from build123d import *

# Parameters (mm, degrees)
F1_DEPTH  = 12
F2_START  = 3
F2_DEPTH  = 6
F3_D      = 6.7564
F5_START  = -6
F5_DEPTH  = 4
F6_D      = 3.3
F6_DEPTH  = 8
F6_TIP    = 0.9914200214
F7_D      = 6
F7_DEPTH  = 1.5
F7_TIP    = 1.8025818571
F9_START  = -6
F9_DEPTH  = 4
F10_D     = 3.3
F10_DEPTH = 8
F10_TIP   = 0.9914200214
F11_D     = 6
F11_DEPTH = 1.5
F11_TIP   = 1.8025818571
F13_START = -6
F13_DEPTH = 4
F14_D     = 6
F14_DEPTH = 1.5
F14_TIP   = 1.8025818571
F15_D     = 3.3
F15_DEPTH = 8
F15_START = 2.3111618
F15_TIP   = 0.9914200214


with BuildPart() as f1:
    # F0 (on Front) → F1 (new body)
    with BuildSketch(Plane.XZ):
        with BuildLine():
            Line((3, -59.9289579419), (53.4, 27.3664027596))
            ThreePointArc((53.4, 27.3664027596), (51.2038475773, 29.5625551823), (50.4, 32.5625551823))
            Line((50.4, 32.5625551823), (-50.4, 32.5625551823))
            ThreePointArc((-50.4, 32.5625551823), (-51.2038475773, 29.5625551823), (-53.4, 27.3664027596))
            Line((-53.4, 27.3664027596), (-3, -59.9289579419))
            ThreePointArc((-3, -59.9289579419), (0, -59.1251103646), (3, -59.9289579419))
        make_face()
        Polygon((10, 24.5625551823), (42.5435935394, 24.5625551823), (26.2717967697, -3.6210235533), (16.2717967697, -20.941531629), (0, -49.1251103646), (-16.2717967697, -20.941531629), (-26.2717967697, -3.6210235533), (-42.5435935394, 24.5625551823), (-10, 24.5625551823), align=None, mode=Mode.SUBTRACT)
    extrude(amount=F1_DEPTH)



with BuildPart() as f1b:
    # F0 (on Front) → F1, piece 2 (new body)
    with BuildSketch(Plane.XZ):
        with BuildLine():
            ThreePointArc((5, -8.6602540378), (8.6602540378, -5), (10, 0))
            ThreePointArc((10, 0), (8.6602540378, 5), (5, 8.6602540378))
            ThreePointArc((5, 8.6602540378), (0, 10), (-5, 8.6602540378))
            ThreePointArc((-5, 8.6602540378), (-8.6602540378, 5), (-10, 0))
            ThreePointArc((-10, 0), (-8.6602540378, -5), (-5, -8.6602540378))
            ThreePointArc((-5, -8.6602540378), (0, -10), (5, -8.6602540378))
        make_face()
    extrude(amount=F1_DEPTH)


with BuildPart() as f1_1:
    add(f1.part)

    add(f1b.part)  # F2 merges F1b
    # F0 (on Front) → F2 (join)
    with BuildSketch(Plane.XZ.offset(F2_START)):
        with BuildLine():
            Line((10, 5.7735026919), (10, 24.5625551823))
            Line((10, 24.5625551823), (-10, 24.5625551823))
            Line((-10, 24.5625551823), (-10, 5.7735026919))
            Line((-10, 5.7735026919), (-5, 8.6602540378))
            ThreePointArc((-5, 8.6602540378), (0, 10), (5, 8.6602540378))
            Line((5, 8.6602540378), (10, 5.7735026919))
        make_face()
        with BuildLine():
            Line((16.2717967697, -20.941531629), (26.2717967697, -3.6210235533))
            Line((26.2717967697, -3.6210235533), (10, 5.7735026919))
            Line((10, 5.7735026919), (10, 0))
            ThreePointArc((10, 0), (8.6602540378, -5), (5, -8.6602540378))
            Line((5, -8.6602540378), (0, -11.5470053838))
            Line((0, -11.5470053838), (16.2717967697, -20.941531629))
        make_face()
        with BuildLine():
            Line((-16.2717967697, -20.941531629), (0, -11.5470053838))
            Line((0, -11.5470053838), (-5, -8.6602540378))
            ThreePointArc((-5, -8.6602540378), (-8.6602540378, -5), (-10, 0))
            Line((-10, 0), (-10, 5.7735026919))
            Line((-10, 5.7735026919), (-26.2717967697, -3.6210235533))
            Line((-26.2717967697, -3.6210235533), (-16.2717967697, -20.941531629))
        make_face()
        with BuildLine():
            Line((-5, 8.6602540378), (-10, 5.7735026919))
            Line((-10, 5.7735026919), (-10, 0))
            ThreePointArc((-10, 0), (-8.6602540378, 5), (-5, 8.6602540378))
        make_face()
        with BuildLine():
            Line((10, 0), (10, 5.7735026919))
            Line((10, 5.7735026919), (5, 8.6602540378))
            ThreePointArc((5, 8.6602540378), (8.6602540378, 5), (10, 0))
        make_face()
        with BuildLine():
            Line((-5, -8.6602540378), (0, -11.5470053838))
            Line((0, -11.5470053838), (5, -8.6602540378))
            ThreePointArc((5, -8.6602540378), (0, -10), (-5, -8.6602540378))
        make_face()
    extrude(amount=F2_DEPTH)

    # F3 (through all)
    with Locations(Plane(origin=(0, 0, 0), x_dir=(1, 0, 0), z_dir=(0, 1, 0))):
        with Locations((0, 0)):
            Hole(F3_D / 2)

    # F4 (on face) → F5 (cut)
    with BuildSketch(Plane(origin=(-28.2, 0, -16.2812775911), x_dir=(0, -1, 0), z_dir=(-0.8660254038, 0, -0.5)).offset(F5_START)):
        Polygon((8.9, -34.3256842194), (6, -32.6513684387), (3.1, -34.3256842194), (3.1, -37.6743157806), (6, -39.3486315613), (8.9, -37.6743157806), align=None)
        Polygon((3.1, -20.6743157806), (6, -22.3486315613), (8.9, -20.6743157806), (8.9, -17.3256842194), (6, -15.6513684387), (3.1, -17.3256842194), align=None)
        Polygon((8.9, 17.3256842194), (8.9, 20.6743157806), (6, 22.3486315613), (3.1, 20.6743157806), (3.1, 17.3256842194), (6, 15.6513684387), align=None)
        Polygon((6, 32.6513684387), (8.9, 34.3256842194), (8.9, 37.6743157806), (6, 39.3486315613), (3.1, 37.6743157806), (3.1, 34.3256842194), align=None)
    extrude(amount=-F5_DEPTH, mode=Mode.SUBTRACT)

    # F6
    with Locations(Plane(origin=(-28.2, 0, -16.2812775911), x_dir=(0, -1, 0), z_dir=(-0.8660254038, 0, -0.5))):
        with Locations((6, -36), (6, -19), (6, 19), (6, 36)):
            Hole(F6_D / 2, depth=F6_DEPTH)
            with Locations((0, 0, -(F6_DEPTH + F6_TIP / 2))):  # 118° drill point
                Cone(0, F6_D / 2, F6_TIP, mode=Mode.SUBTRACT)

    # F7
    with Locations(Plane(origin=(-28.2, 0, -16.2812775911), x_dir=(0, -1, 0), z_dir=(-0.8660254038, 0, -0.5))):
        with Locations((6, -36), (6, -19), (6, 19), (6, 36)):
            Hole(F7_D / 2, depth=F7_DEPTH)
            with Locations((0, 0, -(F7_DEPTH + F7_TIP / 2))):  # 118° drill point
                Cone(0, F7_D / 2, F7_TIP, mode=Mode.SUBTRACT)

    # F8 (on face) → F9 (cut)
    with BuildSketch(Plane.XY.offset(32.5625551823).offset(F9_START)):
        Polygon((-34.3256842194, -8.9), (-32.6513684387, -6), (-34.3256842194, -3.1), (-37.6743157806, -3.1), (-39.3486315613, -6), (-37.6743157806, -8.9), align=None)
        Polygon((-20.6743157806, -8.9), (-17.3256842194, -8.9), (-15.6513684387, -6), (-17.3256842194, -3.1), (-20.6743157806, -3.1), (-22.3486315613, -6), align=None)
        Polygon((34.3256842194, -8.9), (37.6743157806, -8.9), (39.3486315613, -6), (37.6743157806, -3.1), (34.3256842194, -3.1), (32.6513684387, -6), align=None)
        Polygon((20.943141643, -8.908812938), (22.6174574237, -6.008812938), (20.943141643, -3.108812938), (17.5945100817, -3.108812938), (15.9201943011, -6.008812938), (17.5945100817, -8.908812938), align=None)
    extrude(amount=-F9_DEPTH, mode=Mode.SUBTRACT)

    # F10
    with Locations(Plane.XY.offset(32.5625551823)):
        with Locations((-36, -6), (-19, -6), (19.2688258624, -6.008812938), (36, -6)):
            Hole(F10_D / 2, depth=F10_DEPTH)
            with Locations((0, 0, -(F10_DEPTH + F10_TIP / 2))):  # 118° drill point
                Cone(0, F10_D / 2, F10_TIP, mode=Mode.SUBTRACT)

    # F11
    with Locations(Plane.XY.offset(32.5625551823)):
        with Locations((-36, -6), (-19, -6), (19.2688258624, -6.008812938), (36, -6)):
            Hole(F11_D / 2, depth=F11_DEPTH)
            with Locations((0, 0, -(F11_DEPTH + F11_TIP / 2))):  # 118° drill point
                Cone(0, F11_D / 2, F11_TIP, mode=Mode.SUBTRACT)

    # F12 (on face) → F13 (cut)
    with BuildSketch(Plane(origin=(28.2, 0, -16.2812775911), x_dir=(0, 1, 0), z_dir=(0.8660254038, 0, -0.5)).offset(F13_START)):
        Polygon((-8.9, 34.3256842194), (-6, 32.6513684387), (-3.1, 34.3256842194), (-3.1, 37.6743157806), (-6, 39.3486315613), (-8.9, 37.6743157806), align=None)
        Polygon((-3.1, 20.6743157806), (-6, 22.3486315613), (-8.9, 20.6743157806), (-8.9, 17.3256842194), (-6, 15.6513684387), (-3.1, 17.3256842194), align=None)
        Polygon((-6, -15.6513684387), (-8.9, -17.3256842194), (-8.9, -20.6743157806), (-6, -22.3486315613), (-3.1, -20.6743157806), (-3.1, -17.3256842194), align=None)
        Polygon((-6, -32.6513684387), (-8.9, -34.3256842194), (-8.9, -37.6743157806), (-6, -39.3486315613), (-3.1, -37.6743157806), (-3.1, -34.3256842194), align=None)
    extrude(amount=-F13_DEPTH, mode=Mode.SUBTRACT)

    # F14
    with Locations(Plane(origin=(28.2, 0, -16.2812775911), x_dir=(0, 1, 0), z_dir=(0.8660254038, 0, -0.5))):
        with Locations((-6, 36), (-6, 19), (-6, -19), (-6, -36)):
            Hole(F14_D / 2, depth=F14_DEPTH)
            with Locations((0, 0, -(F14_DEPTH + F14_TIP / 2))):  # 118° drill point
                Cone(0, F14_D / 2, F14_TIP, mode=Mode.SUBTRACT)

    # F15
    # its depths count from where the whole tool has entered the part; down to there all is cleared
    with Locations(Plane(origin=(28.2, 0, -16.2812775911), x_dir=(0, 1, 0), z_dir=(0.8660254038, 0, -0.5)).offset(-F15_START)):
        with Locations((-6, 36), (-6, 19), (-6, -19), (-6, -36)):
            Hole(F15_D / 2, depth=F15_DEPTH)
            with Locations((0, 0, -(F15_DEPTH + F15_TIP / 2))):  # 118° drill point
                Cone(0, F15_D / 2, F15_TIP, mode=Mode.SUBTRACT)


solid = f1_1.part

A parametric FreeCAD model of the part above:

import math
import FreeCAD as App
import Part
import Sketcher
Q = App.Units.Quantity


def add_polygon(sketch, points):
    """Adds a closed chain of lines whose ends are joined by coincident constraints."""
    first, n = sketch.GeometryCount, len(points)
    for a, b in zip(points, points[1:] + points[:1]):
        sketch.addGeometry(Part.LineSegment(App.Vector(*a, 0), App.Vector(*b, 0)), False)
    for i in range(n):
        sketch.addConstraint(Sketcher.Constraint("Coincident", first + i, 2, first + (i + 1) % n, 1))

doc = App.newDocument("Part")
body = doc.addObject("PartDesign::Body", "Body")

# Sketch on XZ plane
sketch1 = body.newObject("Sketcher::SketchObject", "Sketch")
sketch1.AttachmentSupport = (doc.getObject("XZ_Plane"), [""])
sketch1.MapMode = "FlatFace"
sketch1.addGeometry(Part.LineSegment(App.Vector(3, -60, 0), App.Vector(53, 27, 0)), False)  # 0
sketch1.addGeometry(Part.ArcOfCircle(Part.Circle(App.Vector(56, 33, 0), App.Vector(0, 0, 1), 6), math.radians(180), math.radians(240)), False)  # 1
sketch1.addGeometry(Part.LineSegment(App.Vector(50, 33, 0), App.Vector(-50, 33, 0)), False)  # 2
sketch1.addGeometry(Part.ArcOfCircle(Part.Circle(App.Vector(-56, 33, 0), App.Vector(0, 0, 1), 6), math.radians(-60), math.radians(0)), False)  # 3
sketch1.addGeometry(Part.LineSegment(App.Vector(-53, 27, 0), App.Vector(-3, -60, 0)), False)  # 4
sketch1.addGeometry(Part.ArcOfCircle(Part.Circle(App.Vector(0, -65, 0), App.Vector(0, 0, 1), 6), math.radians(60), math.radians(120)), False)  # 5
add_polygon(sketch1, [(-43, 25), (43, 25), (0, -49)])  # lines 6-8
sketch1.addConstraint([
    Sketcher.Constraint("Coincident", 0, 2, 1, 2),
    Sketcher.Constraint("Coincident", 1, 1, 2, 1),
    Sketcher.Constraint("Coincident", 2, 2, 3, 2),
    Sketcher.Constraint("Coincident", 3, 1, 4, 1),
    Sketcher.Constraint("Coincident", 4, 2, 5, 2),
    Sketcher.Constraint("Coincident", 5, 1, 0, 1),
    Sketcher.Constraint("Horizontal", 2),
    Sketcher.Constraint("Horizontal", 6),
    Sketcher.Constraint("Equal", 1, 3),
    Sketcher.Constraint("Equal", 3, 5),
    Sketcher.Constraint("Symmetric", 1, 3, 3, 3, -2),
    Sketcher.Constraint("Symmetric", 4, 2, 5, 1, -2),
    Sketcher.Constraint("PointOnObject", 7, 2, -2),
    Sketcher.Constraint("Parallel", 0, 7),
    Sketcher.Constraint("Parallel", 4, 8),
    Sketcher.Constraint("Horizontal", 3, 3, 1, 1),
    Sketcher.Constraint("Horizontal", 0, 2, 3, 1),
    Sketcher.Constraint("Radius", 1, Q("6 mm")),
    Sketcher.Constraint("Angle", 0, Q("60 deg")),
    Sketcher.Constraint("DistanceX", 2, 2, 2, 1, Q("100.8 mm")),
    Sketcher.Constraint("DistanceX", 4, 2, -1, 1, Q("3 mm")),
    Sketcher.Constraint("DistanceX", 0, 2, 1, 3, Q("3 mm")),
    Sketcher.Constraint("DistanceY", 6, 2, 1, 1, Q("8 mm")),
    Sketcher.Constraint("DistanceY", 5, 3, 7, 2, Q("16 mm")),
    Sketcher.Constraint("DistanceY", 5, 3, -1, 1, Q("65.12511 mm")),
])
pad1 = body.newObject("PartDesign::Pad", "Pad")
pad1.Profile = sketch1
pad1.Length = 12
body2 = doc.addObject("PartDesign::Body", "Body001")

# Sketch on XZ plane
sketch2 = body2.newObject("Sketcher::SketchObject", "Sketch001")
sketch2.AttachmentSupport = (doc.getObject("XZ_Plane001"), [""])
sketch2.MapMode = "FlatFace"
sketch2.addGeometry([
    Part.ArcOfCircle(Part.Circle(App.Vector(0, 0, 0), App.Vector(0, 0, 1), 10), math.radians(-60), math.radians(0)),  # 0
    Part.ArcOfCircle(Part.Circle(App.Vector(0, 0, 0), App.Vector(0, 0, 1), 10), math.radians(0), math.radians(60)),  # 1
    Part.ArcOfCircle(Part.Circle(App.Vector(0, 0, 0), App.Vector(0, 0, 1), 10), math.radians(60), math.radians(120)),  # 2
    Part.ArcOfCircle(Part.Circle(App.Vector(0, 0, 0), App.Vector(0, 0, 1), 10), math.radians(120), math.radians(180)),  # 3
    Part.ArcOfCircle(Part.Circle(App.Vector(0, 0, 0), App.Vector(0, 0, 1), 10), math.radians(180), math.radians(240)),  # 4
    Part.ArcOfCircle(Part.Circle(App.Vector(0, 0, 0), App.Vector(0, 0, 1), 10), math.radians(-120), math.radians(-60)),  # 5
], False)
sketch2.addConstraint([
    Sketcher.Constraint("Tangent", 0, 2, 1, 1),
    Sketcher.Constraint("Tangent", 1, 2, 2, 1),
    Sketcher.Constraint("Tangent", 2, 2, 3, 1),
    Sketcher.Constraint("Tangent", 3, 2, 4, 1),
    Sketcher.Constraint("Tangent", 4, 2, 5, 1),
    Sketcher.Constraint("Tangent", 5, 2, 0, 1),
    Sketcher.Constraint("Coincident", 0, 3, -1, 1),
    Sketcher.Constraint("Coincident", 2, 3, -1, 1),
    Sketcher.Constraint("Equal", 2, 3),
    Sketcher.Constraint("PointOnObject", 0, 2, -1),
    Sketcher.Constraint("PointOnObject", 3, 2, -1),
    Sketcher.Constraint("Horizontal", 1, 2, 2, 2),
    Sketcher.Constraint("Horizontal", 4, 2, 5, 2),
    Sketcher.Constraint("Vertical", 2, 2, 4, 2),
    Sketcher.Constraint("Radius", 0, Q("10 mm")),
    Sketcher.Constraint("DistanceX", -1, 1, 1, 2, Q("5 mm")),
])
pad2 = body2.newObject("PartDesign::Pad", "Pad001")
pad2.Profile = sketch2
pad2.Length = 12
body.AllowCompound = True
doc.recompute()

boolean = body.newObject("PartDesign::Boolean", "Boolean")
boolean.Type = "Fuse"
boolean.addObjects([body2])

# Sketch on XZ plane
sketch3 = body.newObject("Sketcher::SketchObject", "Sketch002")
sketch3.AttachmentSupport = (doc.getObject("XZ_Plane"), [""])
sketch3.MapMode = "FlatFace"
sketch3.AttachmentOffset = App.Placement(App.Vector(0, 0, 3), App.Rotation())
add_polygon(sketch3, [(-16, -21), (0, -12), (16, -21), (26, -4), (10, 6), (10, 25), (-10, 25), (-10, 6), (-26, -4)])  # lines 0-8
sketch3.addGeometry(Part.ArcOfCircle(Part.Circle(App.Vector(0, 0, 0), App.Vector(0, 0, 1), 10), math.radians(-60), math.radians(0)), False)  # 9
sketch3.addGeometry(Part.ArcOfCircle(Part.Circle(App.Vector(0, 0, 0), App.Vector(0, 0, 1), 10), math.radians(-120), math.radians(-60)), False)  # 10
sketch3.addGeometry(Part.ArcOfCircle(Part.Circle(App.Vector(0, 0, 0), App.Vector(0, 0, 1), 10), math.radians(180), math.radians(240)), False)  # 11
sketch3.addGeometry(Part.ArcOfCircle(Part.Circle(App.Vector(0, 0, 0), App.Vector(0, 0, 1), 10), math.radians(120), math.radians(180)), False)  # 12
sketch3.addGeometry(Part.ArcOfCircle(Part.Circle(App.Vector(0, 0, 0), App.Vector(0, 0, 1), 10), math.radians(60), math.radians(120)), False)  # 13
sketch3.addGeometry(Part.ArcOfCircle(Part.Circle(App.Vector(0, 0, 0), App.Vector(0, 0, 1), 10), math.radians(0), math.radians(60)), False)  # 14
sketch3.addConstraint([
    Sketcher.Constraint("Tangent", 9, 1, 10, 2),
    Sketcher.Constraint("Tangent", 10, 1, 11, 2),
    Sketcher.Constraint("Tangent", 11, 1, 12, 2),
    Sketcher.Constraint("Tangent", 12, 1, 13, 2),
    Sketcher.Constraint("Tangent", 13, 1, 14, 2),
    Sketcher.Constraint("Tangent", 14, 1, 9, 2),
    Sketcher.Constraint("Vertical", 4),
    Sketcher.Constraint("Horizontal", 5),
    Sketcher.Constraint("Vertical", 6),
    Sketcher.Constraint("Coincident", 9, 3, -1, 1),
    Sketcher.Constraint("Coincident", 11, 3, -1, 1),
    Sketcher.Constraint("Equal", 11, 12),
    Sketcher.Constraint("Symmetric", 3, 2, 6, 2, -2),
    Sketcher.Constraint("Symmetric", 2, 2, 7, 2, -2),
    Sketcher.Constraint("Symmetric", 1, 2, 8, 2, -2),
    Sketcher.Constraint("PointOnObject", 0, 2, -2),
    Sketcher.Constraint("PointOnObject", 11, 1, -1),
    Sketcher.Constraint("PointOnObject", 14, 1, -1),
    Sketcher.Constraint("Perpendicular", 1, 2),
    Sketcher.Constraint("Perpendicular", 2, 3),
    Sketcher.Constraint("Horizontal", 9, 1, 10, 1),
    Sketcher.Constraint("Horizontal", 12, 1, 13, 1),
    Sketcher.Constraint("Vertical", 6, 2, 11, 1),
    Sketcher.Constraint("Vertical", 10, 1, 12, 1),
    Sketcher.Constraint("Equal", 1, 3),
    Sketcher.Constraint("Radius", 9, Q("10 mm")),
    Sketcher.Constraint("Angle", 0, Q("30 deg")),
    Sketcher.Constraint("DistanceX", -1, 1, 9, 1, Q("5 mm")),
    Sketcher.Constraint("DistanceY", 4, 1, 4, 2, Q("18.789052 mm")),
    Sketcher.Constraint("DistanceY", 1, 2, -1, 1, Q("20.941532 mm")),
    Sketcher.Constraint("DistanceY", 0, 2, 9, 1, Q("2.886751 mm")),
])
pad3 = body.newObject("PartDesign::Pad", "Pad002")
pad3.Profile = sketch3
pad3.Length = 6

# Sketch on XZ plane
sketch4 = body.newObject("Sketcher::SketchObject", "Sketch003")
sketch4.AttachmentSupport = (doc.getObject("XZ_Plane"), [""])
sketch4.MapMode = "FlatFace"
sketch4.addGeometry(Part.Circle(App.Vector(0, 0, 0), App.Vector(0, 0, 1), 3.4), False)
sketch4.addConstraint([
    Sketcher.Constraint("Coincident", 0, 3, -1, 1),
    Sketcher.Constraint("Diameter", 0, Q("6.7564 mm")),
])
doc.recompute()
hole = body.newObject("PartDesign::Hole", "Hole")
hole.Profile = sketch4
hole.ThreadType = "None"
hole.Diameter = 6.7564
hole.DepthType = "ThroughAll"
hole.Reversed = True

# Sketch on an angled plane
sketch5 = body.newObject("Sketcher::SketchObject", "Sketch004")
sketch5.Placement = App.Placement(App.Vector(-23.003848, 0, -13.281278), App.Rotation(App.Vector(0, -1, 0), App.Vector(-0.5, 0, 0.866025404), App.Vector(-0.866025404, 0, -0.5), "ZXY"))
add_polygon(sketch5, [(8.9, -34.3), (6, -32.7), (3.1, -34.3), (3.1, -37.7), (6, -39.3), (8.9, -37.7)])  # lines 0-5
add_polygon(sketch5, [(3.1, -20.7), (6, -22.3), (8.9, -20.7), (8.9, -17.3), (6, -15.7), (3.1, -17.3)])  # lines 6-11
add_polygon(sketch5, [(8.9, 17.3), (8.9, 20.7), (6, 22.3), (3.1, 20.7), (3.1, 17.3), (6, 15.7)])  # lines 12-17
add_polygon(sketch5, [(6, 32.7), (8.9, 34.3), (8.9, 37.7), (6, 39.3), (3.1, 37.7), (3.1, 34.3)])  # lines 18-23
sketch5.addConstraint([
    Sketcher.Constraint("Vertical", 2),
    Sketcher.Constraint("Vertical", 5),
    Sketcher.Constraint("Vertical", 8),
    Sketcher.Constraint("Vertical", 11),
    Sketcher.Constraint("Vertical", 12),
    Sketcher.Constraint("Vertical", 15),
    Sketcher.Constraint("Vertical", 19),
    Sketcher.Constraint("Vertical", 22),
    Sketcher.Constraint("Symmetric", 7, 2, 12, 2, -1),
    Sketcher.Constraint("Symmetric", 6, 2, 13, 2, -1),
    Sketcher.Constraint("Symmetric", 11, 2, 14, 2, -1),
    Sketcher.Constraint("Symmetric", 9, 2, 16, 2, -1),
    Sketcher.Constraint("Symmetric", 5, 2, 18, 2, -1),
    Sketcher.Constraint("Symmetric", 3, 2, 20, 2, -1),
    Sketcher.Constraint("Symmetric", 2, 2, 21, 2, -1),
    Sketcher.Constraint("Symmetric", 0, 2, 23, 2, -1),
    Sketcher.Constraint("Parallel", 0, 3),
    Sketcher.Constraint("Parallel", 1, 4),
    Sketcher.Constraint("Parallel", 3, 6),
    Sketcher.Constraint("Parallel", 4, 7),
    Sketcher.Constraint("Parallel", 6, 9),
    Sketcher.Constraint("Parallel", 7, 10),
    Sketcher.Constraint("Parallel", 9, 13),
    Sketcher.Constraint("Parallel", 13, 16),
    Sketcher.Constraint("Parallel", 14, 17),
    Sketcher.Constraint("Parallel", 16, 20),
    Sketcher.Constraint("Parallel", 20, 23),
    Sketcher.Constraint("Horizontal", 2, 2, 4, 2),
    Sketcher.Constraint("Horizontal", 1, 2, 5, 2),
    Sketcher.Constraint("Horizontal", 8, 2, 10, 2),
    Sketcher.Constraint("Horizontal", 7, 2, 11, 2),
    Sketcher.Constraint("Vertical", 3, 2, 6, 2),
    Sketcher.Constraint("Vertical", 5, 2, 7, 2),
    Sketcher.Constraint("Equal", 5, 8),
    Sketcher.Constraint("Angle", 0, Q("150 deg")),
    Sketcher.Constraint("DistanceX", -1, 1, 0, 2, Q("6 mm")),
    Sketcher.Constraint("DistanceY", 4, 2, 7, 2, Q("17 mm")),
    Sketcher.Constraint("DistanceY", 8, 2, 12, 2, Q("38 mm")),
    Sketcher.Constraint("DistanceX", -1, 1, 1, 2, Q("3.1 mm")),
    Sketcher.Constraint("DistanceY", 2, 2, 2, 1, Q("3.348632 mm")),
])
pocket1 = body.newObject("PartDesign::Pocket", "Pocket")
pocket1.Profile = sketch5
pocket1.Length = 4

# Sketch on an angled plane
sketch6 = body.newObject("Sketcher::SketchObject", "Sketch005")
sketch6.Placement = App.Placement(App.Vector(-28.2, 0, -16.281278), App.Rotation(App.Vector(0, -1, 0), App.Vector(-0.5, 0, 0.866025404), App.Vector(-0.866025404, 0, -0.5), "ZXY"))
sketch6.addGeometry([
    Part.Circle(App.Vector(6, -36, 0), App.Vector(0, 0, 1), 1.6),
    Part.Circle(App.Vector(6, -19, 0), App.Vector(0, 0, 1), 1.6),
    Part.Circle(App.Vector(6, 19, 0), App.Vector(0, 0, 1), 1.6),
    Part.Circle(App.Vector(6, 36, 0), App.Vector(0, 0, 1), 1.6),
], False)
sketch6.addConstraint([
    Sketcher.Constraint("Equal", 0, 1),
    Sketcher.Constraint("Equal", 1, 2),
    Sketcher.Constraint("Equal", 2, 3),
    Sketcher.Constraint("Symmetric", 1, 3, 2, 3, -1),
    Sketcher.Constraint("Symmetric", 0, 3, 3, 3, -1),
    Sketcher.Constraint("Vertical", 0, 3, 1, 3),
    Sketcher.Constraint("Diameter", 0, Q("3.3 mm")),
    Sketcher.Constraint("DistanceX", -1, 1, 0, 3, Q("6 mm")),
    Sketcher.Constraint("DistanceY", 0, 3, -1, 1, Q("36 mm")),
    Sketcher.Constraint("DistanceY", 1, 3, -1, 1, Q("19 mm")),
])
doc.recompute()
hole2 = body.newObject("PartDesign::Hole", "Hole001")
hole2.Profile = sketch6
hole2.ThreadType = "None"
hole2.Diameter = 3.3
hole2.DepthType = "Dimension"
hole2.Depth = 8
hole2.DrillPoint = "Angled"
hole2.DrillPointAngle = 118

# Sketch on an angled plane
sketch7 = body.newObject("Sketcher::SketchObject", "Sketch006")
sketch7.Placement = App.Placement(App.Vector(-28.2, 0, -16.281278), App.Rotation(App.Vector(0, -1, 0), App.Vector(-0.5, 0, 0.866025404), App.Vector(-0.866025404, 0, -0.5), "ZXY"))
sketch7.addGeometry([
    Part.Circle(App.Vector(6, -36, 0), App.Vector(0, 0, 1), 3),
    Part.Circle(App.Vector(6, -19, 0), App.Vector(0, 0, 1), 3),
    Part.Circle(App.Vector(6, 19, 0), App.Vector(0, 0, 1), 3),
    Part.Circle(App.Vector(6, 36, 0), App.Vector(0, 0, 1), 3),
], False)
sketch7.addConstraint([
    Sketcher.Constraint("Equal", 0, 1),
    Sketcher.Constraint("Equal", 1, 2),
    Sketcher.Constraint("Equal", 2, 3),
    Sketcher.Constraint("Symmetric", 1, 3, 2, 3, -1),
    Sketcher.Constraint("Symmetric", 0, 3, 3, 3, -1),
    Sketcher.Constraint("Vertical", 0, 3, 1, 3),
    Sketcher.Constraint("Diameter", 0, Q("6 mm")),
    Sketcher.Constraint("DistanceX", -1, 1, 0, 3, Q("6 mm")),
    Sketcher.Constraint("DistanceY", 0, 3, -1, 1, Q("36 mm")),
    Sketcher.Constraint("DistanceY", 1, 3, -1, 1, Q("19 mm")),
])
doc.recompute()
hole3 = body.newObject("PartDesign::Hole", "Hole002")
hole3.Profile = sketch7
hole3.ThreadType = "None"
hole3.Diameter = 6
hole3.DepthType = "Dimension"
hole3.Depth = 1.5
hole3.DrillPoint = "Angled"
hole3.DrillPointAngle = 118

# Sketch on XY plane
sketch8 = body.newObject("Sketcher::SketchObject", "Sketch007")
sketch8.AttachmentSupport = (doc.getObject("XY_Plane"), [""])
sketch8.MapMode = "FlatFace"
sketch8.AttachmentOffset = App.Placement(App.Vector(0, 0, 26.562555), App.Rotation())
add_polygon(sketch8, [(-34.3, -8.9), (-32.7, -6), (-34.3, -3.1), (-37.7, -3.1), (-39.3, -6), (-37.7, -8.9)])  # lines 0-5
add_polygon(sketch8, [(-20.7, -8.9), (-17.3, -8.9), (-15.7, -6), (-17.3, -3.1), (-20.7, -3.1), (-22.3, -6)])  # lines 6-11
add_polygon(sketch8, [(34.3, -8.9), (37.7, -8.9), (39.3, -6), (37.7, -3.1), (34.3, -3.1), (32.7, -6)])  # lines 12-17
add_polygon(sketch8, [(20.9, -8.9), (22.6, -6), (20.9, -3.1), (17.6, -3.1), (15.9, -6), (17.6, -8.9)])  # lines 18-23
sketch8.addConstraint([
    Sketcher.Constraint("Horizontal", 2),
    Sketcher.Constraint("Horizontal", 5),
    Sketcher.Constraint("Horizontal", 6),
    Sketcher.Constraint("Horizontal", 9),
    Sketcher.Constraint("Horizontal", 12),
    Sketcher.Constraint("Horizontal", 15),
    Sketcher.Constraint("Horizontal", 20),
    Sketcher.Constraint("Horizontal", 23),
    Sketcher.Constraint("Symmetric", 4, 2, 12, 2, -2),
    Sketcher.Constraint("Symmetric", 3, 2, 13, 2, -2),
    Sketcher.Constraint("Symmetric", 2, 2, 14, 2, -2),
    Sketcher.Constraint("Symmetric", 0, 2, 16, 2, -2),
    Sketcher.Constraint("Parallel", 0, 3),
    Sketcher.Constraint("Parallel", 1, 4),
    Sketcher.Constraint("Parallel", 3, 7),
    Sketcher.Constraint("Parallel", 4, 8),
    Sketcher.Constraint("Parallel", 7, 10),
    Sketcher.Constraint("Parallel", 8, 11),
    Sketcher.Constraint("Parallel", 10, 13),
    Sketcher.Constraint("Parallel", 13, 16),
    Sketcher.Constraint("Parallel", 14, 17),
    Sketcher.Constraint("Parallel", 16, 18),
    Sketcher.Constraint("Parallel", 17, 19),
    Sketcher.Constraint("Parallel", 18, 21),
    Sketcher.Constraint("Parallel", 19, 22),
    Sketcher.Constraint("Horizontal", 0, 2, 3, 2),
    Sketcher.Constraint("Horizontal", 5, 2, 6, 2),
    Sketcher.Constraint("Horizontal", 3, 2, 7, 2),
    Sketcher.Constraint("Horizontal", 2, 2, 8, 2),
    Sketcher.Constraint("Horizontal", 7, 2, 10, 2),
    Sketcher.Constraint("Horizontal", 18, 2, 21, 2),
    Sketcher.Constraint("Vertical", 2, 2, 4, 2),
    Sketcher.Constraint("Vertical", 20, 2, 22, 2),
    Sketcher.Constraint("Equal", 5, 6),
    Sketcher.Constraint("Equal", 15, 20),
    Sketcher.Constraint("Equal", 17, 18),
    Sketcher.Constraint("Angle", 0, Q("60 deg")),
    Sketcher.Constraint("DistanceY", 0, 2, -1, 1, Q("6 mm")),
    Sketcher.Constraint("DistanceX", 5, 2, 6, 2, Q("17 mm")),
    Sketcher.Constraint("DistanceX", 6, 2, 12, 2, Q("55 mm")),
    Sketcher.Constraint("DistanceY", 1, 2, -1, 1, Q("3.1 mm")),
    Sketcher.Constraint("DistanceX", 2, 2, 2, 1, Q("3.348632 mm")),
    Sketcher.Constraint("DistanceX", -1, 1, 19, 2, Q("20.943142 mm")),
    Sketcher.Constraint("DistanceY", 18, 2, -1, 1, Q("6.008813 mm")),
])
pocket2 = body.newObject("PartDesign::Pocket", "Pocket001")
pocket2.Profile = sketch8
pocket2.Length = 4

# Sketch on XY plane
sketch9 = body.newObject("Sketcher::SketchObject", "Sketch008")
sketch9.AttachmentSupport = (doc.getObject("XY_Plane"), [""])
sketch9.MapMode = "FlatFace"
sketch9.AttachmentOffset = App.Placement(App.Vector(0, 0, 32.562555), App.Rotation())
sketch9.addGeometry([
    Part.Circle(App.Vector(-36, -6, 0), App.Vector(0, 0, 1), 1.6),
    Part.Circle(App.Vector(-19, -6, 0), App.Vector(0, 0, 1), 1.6),
    Part.Circle(App.Vector(19.3, -6, 0), App.Vector(0, 0, 1), 1.6),
    Part.Circle(App.Vector(36, -6, 0), App.Vector(0, 0, 1), 1.6),
], False)
sketch9.addConstraint([
    Sketcher.Constraint("Equal", 0, 1),
    Sketcher.Constraint("Equal", 1, 2),
    Sketcher.Constraint("Equal", 2, 3),
    Sketcher.Constraint("Symmetric", 0, 3, 3, 3, -2),
    Sketcher.Constraint("Horizontal", 0, 3, 1, 3),
    Sketcher.Constraint("Diameter", 0, Q("3.3 mm")),
    Sketcher.Constraint("DistanceX", 0, 3, -1, 1, Q("36 mm")),
    Sketcher.Constraint("DistanceY", 0, 3, -1, 1, Q("6 mm")),
    Sketcher.Constraint("DistanceX", 1, 3, -1, 1, Q("19 mm")),
    Sketcher.Constraint("DistanceX", -1, 1, 2, 3, Q("19.268826 mm")),
    Sketcher.Constraint("DistanceY", 2, 3, -1, 1, Q("6.008813 mm")),
])
doc.recompute()
hole4 = body.newObject("PartDesign::Hole", "Hole003")
hole4.Profile = sketch9
hole4.ThreadType = "None"
hole4.Diameter = 3.3
hole4.DepthType = "Dimension"
hole4.Depth = 8
hole4.DrillPoint = "Angled"
hole4.DrillPointAngle = 118

# Sketch on XY plane
sketch10 = body.newObject("Sketcher::SketchObject", "Sketch009")
sketch10.AttachmentSupport = (doc.getObject("XY_Plane"), [""])
sketch10.MapMode = "FlatFace"
sketch10.AttachmentOffset = App.Placement(App.Vector(0, 0, 32.562555), App.Rotation())
sketch10.addGeometry([
    Part.Circle(App.Vector(-36, -6, 0), App.Vector(0, 0, 1), 3),
    Part.Circle(App.Vector(-19, -6, 0), App.Vector(0, 0, 1), 3),
    Part.Circle(App.Vector(19.3, -6, 0), App.Vector(0, 0, 1), 3),
    Part.Circle(App.Vector(36, -6, 0), App.Vector(0, 0, 1), 3),
], False)
sketch10.addConstraint([
    Sketcher.Constraint("Equal", 0, 1),
    Sketcher.Constraint("Equal", 1, 2),
    Sketcher.Constraint("Equal", 2, 3),
    Sketcher.Constraint("Symmetric", 0, 3, 3, 3, -2),
    Sketcher.Constraint("Horizontal", 0, 3, 1, 3),
    Sketcher.Constraint("Diameter", 0, Q("6 mm")),
    Sketcher.Constraint("DistanceX", 0, 3, -1, 1, Q("36 mm")),
    Sketcher.Constraint("DistanceY", 0, 3, -1, 1, Q("6 mm")),
    Sketcher.Constraint("DistanceX", 1, 3, -1, 1, Q("19 mm")),
    Sketcher.Constraint("DistanceX", -1, 1, 2, 3, Q("19.268826 mm")),
    Sketcher.Constraint("DistanceY", 2, 3, -1, 1, Q("6.008813 mm")),
])
doc.recompute()
hole5 = body.newObject("PartDesign::Hole", "Hole004")
hole5.Profile = sketch10
hole5.ThreadType = "None"
hole5.Diameter = 6
hole5.DepthType = "Dimension"
hole5.Depth = 1.5
hole5.DrillPoint = "Angled"
hole5.DrillPointAngle = 118

# Sketch on an angled plane
sketch11 = body.newObject("Sketcher::SketchObject", "Sketch010")
sketch11.Placement = App.Placement(App.Vector(23.003848, 0, -13.281278), App.Rotation(App.Vector(0, 1, 0), App.Vector(0.5, 0, 0.866025404), App.Vector(0.866025404, 0, -0.5), "ZXY"))
add_polygon(sketch11, [(-8.9, 34.3), (-6, 32.7), (-3.1, 34.3), (-3.1, 37.7), (-6, 39.3), (-8.9, 37.7)])  # lines 0-5
add_polygon(sketch11, [(-3.1, 20.7), (-6, 22.3), (-8.9, 20.7), (-8.9, 17.3), (-6, 15.7), (-3.1, 17.3)])  # lines 6-11
add_polygon(sketch11, [(-6, -15.7), (-8.9, -17.3), (-8.9, -20.7), (-6, -22.3), (-3.1, -20.7), (-3.1, -17.3)])  # lines 12-17
add_polygon(sketch11, [(-6, -32.7), (-8.9, -34.3), (-8.9, -37.7), (-6, -39.3), (-3.1, -37.7), (-3.1, -34.3)])  # lines 18-23
sketch11.addConstraint([
    Sketcher.Constraint("Vertical", 2),
    Sketcher.Constraint("Vertical", 5),
    Sketcher.Constraint("Vertical", 8),
    Sketcher.Constraint("Vertical", 11),
    Sketcher.Constraint("Vertical", 13),
    Sketcher.Constraint("Vertical", 16),
    Sketcher.Constraint("Vertical", 19),
    Sketcher.Constraint("Vertical", 22),
    Sketcher.Constraint("Symmetric", 8, 2, 12, 2, -1),
    Sketcher.Constraint("Symmetric", 6, 2, 14, 2, -1),
    Sketcher.Constraint("Symmetric", 11, 2, 15, 2, -1),
    Sketcher.Constraint("Symmetric", 9, 2, 17, 2, -1),
    Sketcher.Constraint("Symmetric", 5, 2, 18, 2, -1),
    Sketcher.Constraint("Symmetric", 3, 2, 20, 2, -1),
    Sketcher.Constraint("Symmetric", 2, 2, 21, 2, -1),
    Sketcher.Constraint("Symmetric", 0, 2, 23, 2, -1),
    Sketcher.Constraint("Parallel", 0, 3),
    Sketcher.Constraint("Parallel", 1, 4),
    Sketcher.Constraint("Parallel", 3, 6),
    Sketcher.Constraint("Parallel", 4, 7),
    Sketcher.Constraint("Parallel", 6, 9),
    Sketcher.Constraint("Parallel", 7, 10),
    Sketcher.Constraint("Parallel", 10, 12),
    Sketcher.Constraint("Parallel", 9, 14),
    Sketcher.Constraint("Parallel", 14, 17),
    Sketcher.Constraint("Parallel", 17, 20),
    Sketcher.Constraint("Parallel", 20, 23),
    Sketcher.Constraint("Horizontal", 2, 2, 4, 2),
    Sketcher.Constraint("Horizontal", 1, 2, 5, 2),
    Sketcher.Constraint("Horizontal", 8, 2, 10, 2),
    Sketcher.Constraint("Horizontal", 7, 2, 11, 2),
    Sketcher.Constraint("Vertical", 3, 2, 6, 2),
    Sketcher.Constraint("Vertical", 5, 2, 7, 2),
    Sketcher.Constraint("Equal", 5, 8),
    Sketcher.Constraint("Angle", 0, Q("-30 deg")),
    Sketcher.Constraint("DistanceX", 0, 2, -1, 1, Q("6 mm")),
    Sketcher.Constraint("DistanceY", 7, 2, 4, 2, Q("17 mm")),
    Sketcher.Constraint("DistanceY", 12, 2, 7, 2, Q("38 mm")),
    Sketcher.Constraint("DistanceX", 1, 2, -1, 1, Q("3.1 mm")),
    Sketcher.Constraint("DistanceY", 2, 1, 2, 2, Q("3.348632 mm")),
])
pocket3 = body.newObject("PartDesign::Pocket", "Pocket002")
pocket3.Profile = sketch11
pocket3.Length = 4

# Sketch on an angled plane
sketch12 = body.newObject("Sketcher::SketchObject", "Sketch011")
sketch12.Placement = App.Placement(App.Vector(28.2, 0, -16.281278), App.Rotation(App.Vector(0, 1, 0), App.Vector(0.5, 0, 0.866025404), App.Vector(0.866025404, 0, -0.5), "ZXY"))
sketch12.addGeometry([
    Part.Circle(App.Vector(-6, 36, 0), App.Vector(0, 0, 1), 3),
    Part.Circle(App.Vector(-6, 19, 0), App.Vector(0, 0, 1), 3),
    Part.Circle(App.Vector(-6, -19, 0), App.Vector(0, 0, 1), 3),
    Part.Circle(App.Vector(-6, -36, 0), App.Vector(0, 0, 1), 3),
], False)
sketch12.addConstraint([
    Sketcher.Constraint("Equal", 0, 1),
    Sketcher.Constraint("Equal", 1, 2),
    Sketcher.Constraint("Equal", 2, 3),
    Sketcher.Constraint("Symmetric", 1, 3, 2, 3, -1),
    Sketcher.Constraint("Symmetric", 0, 3, 3, 3, -1),
    Sketcher.Constraint("Vertical", 0, 3, 1, 3),
    Sketcher.Constraint("Diameter", 0, Q("6 mm")),
    Sketcher.Constraint("DistanceX", 0, 3, -1, 1, Q("6 mm")),
    Sketcher.Constraint("DistanceY", -1, 1, 0, 3, Q("36 mm")),
    Sketcher.Constraint("DistanceY", -1, 1, 1, 3, Q("19 mm")),
])
doc.recompute()
hole6 = body.newObject("PartDesign::Hole", "Hole005")
hole6.Profile = sketch12
hole6.ThreadType = "None"
hole6.Diameter = 6
hole6.DepthType = "Dimension"
hole6.Depth = 1.5
hole6.DrillPoint = "Angled"
hole6.DrillPointAngle = 118

# Sketch on an angled plane
sketch13 = body.newObject("Sketcher::SketchObject", "Sketch012")
sketch13.Placement = App.Placement(App.Vector(26.198475, 0, -15.125697), App.Rotation(App.Vector(0, 1, 0), App.Vector(0.5, 0, 0.866025404), App.Vector(0.866025404, 0, -0.5), "ZXY"))
sketch13.addGeometry([
    Part.Circle(App.Vector(-6, 36, 0), App.Vector(0, 0, 1), 1.6),
    Part.Circle(App.Vector(-6, 19, 0), App.Vector(0, 0, 1), 1.6),
    Part.Circle(App.Vector(-6, -19, 0), App.Vector(0, 0, 1), 1.6),
    Part.Circle(App.Vector(-6, -36, 0), App.Vector(0, 0, 1), 1.6),
], False)
sketch13.addConstraint([
    Sketcher.Constraint("Equal", 0, 1),
    Sketcher.Constraint("Equal", 1, 2),
    Sketcher.Constraint("Equal", 2, 3),
    Sketcher.Constraint("Symmetric", 1, 3, 2, 3, -1),
    Sketcher.Constraint("Symmetric", 0, 3, 3, 3, -1),
    Sketcher.Constraint("Vertical", 0, 3, 1, 3),
    Sketcher.Constraint("Diameter", 0, Q("3.3 mm")),
    Sketcher.Constraint("DistanceX", 0, 3, -1, 1, Q("6 mm")),
    Sketcher.Constraint("DistanceY", -1, 1, 0, 3, Q("36 mm")),
    Sketcher.Constraint("DistanceY", -1, 1, 1, 3, Q("19 mm")),
])
doc.recompute()
hole7 = body.newObject("PartDesign::Hole", "Hole006")
hole7.Profile = sketch13
hole7.ThreadType = "None"
hole7.Diameter = 3.3
hole7.DepthType = "Dimension"
hole7.Depth = 8
hole7.DrillPoint = "Angled"
hole7.DrillPointAngle = 118

doc.recompute()
